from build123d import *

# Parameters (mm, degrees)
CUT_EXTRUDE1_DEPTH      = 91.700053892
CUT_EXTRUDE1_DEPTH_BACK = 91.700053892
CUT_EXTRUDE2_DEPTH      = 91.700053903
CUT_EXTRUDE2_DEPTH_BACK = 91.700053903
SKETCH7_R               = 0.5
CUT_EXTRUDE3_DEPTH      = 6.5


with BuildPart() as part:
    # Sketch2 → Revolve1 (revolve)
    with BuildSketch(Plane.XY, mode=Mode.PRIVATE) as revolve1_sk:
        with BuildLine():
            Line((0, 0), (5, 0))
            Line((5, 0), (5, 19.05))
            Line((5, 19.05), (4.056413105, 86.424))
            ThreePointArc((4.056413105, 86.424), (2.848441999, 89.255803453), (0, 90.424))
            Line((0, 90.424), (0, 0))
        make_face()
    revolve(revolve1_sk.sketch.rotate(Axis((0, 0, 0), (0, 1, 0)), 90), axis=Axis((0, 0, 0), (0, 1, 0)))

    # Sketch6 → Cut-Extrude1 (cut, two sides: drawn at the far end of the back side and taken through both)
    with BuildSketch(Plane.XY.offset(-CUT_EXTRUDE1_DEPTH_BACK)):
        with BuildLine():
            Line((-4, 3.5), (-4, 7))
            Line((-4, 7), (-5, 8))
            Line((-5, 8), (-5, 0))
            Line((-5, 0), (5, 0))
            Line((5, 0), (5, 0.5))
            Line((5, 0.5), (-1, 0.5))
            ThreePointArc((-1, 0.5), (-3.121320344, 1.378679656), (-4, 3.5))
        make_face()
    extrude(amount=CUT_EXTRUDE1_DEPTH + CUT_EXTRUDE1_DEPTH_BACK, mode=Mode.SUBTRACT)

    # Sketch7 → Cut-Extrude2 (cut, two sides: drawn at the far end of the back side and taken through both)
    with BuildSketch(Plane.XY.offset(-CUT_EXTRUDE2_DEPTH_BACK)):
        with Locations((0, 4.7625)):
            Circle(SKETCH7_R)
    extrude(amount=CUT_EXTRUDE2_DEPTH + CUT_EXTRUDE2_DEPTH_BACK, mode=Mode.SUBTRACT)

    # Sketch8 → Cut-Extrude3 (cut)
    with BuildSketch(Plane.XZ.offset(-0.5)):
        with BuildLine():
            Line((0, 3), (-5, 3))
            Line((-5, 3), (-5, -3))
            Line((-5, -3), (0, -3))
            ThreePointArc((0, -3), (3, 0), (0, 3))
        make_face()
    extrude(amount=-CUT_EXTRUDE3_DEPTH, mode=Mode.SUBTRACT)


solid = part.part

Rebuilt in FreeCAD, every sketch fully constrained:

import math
import FreeCAD as App
import Part
import Sketcher
from FreeCAD import Vector
Q = App.Units.Quantity

doc = App.newDocument("Part")
body = doc.addObject("PartDesign::Body", "Body")

# Sketch on XY plane
sketch1 = body.newObject("Sketcher::SketchObject", "Sketch")
sketch1.AttachmentSupport = (doc.getObject("XY_Plane"), [""])
sketch1.MapMode = "FlatFace"
sketch1.addGeometry([
    Part.LineSegment(Vector(0, 0, 0), Vector(5, 0, 0)),  # 0
    Part.LineSegment(Vector(5, 0, 0), Vector(5, 19.05, 0)),  # 1
    Part.LineSegment(Vector(5, 19.05, 0), Vector(4.056413, 86.424, 0)),  # 2
    Part.ArcOfCircle(Part.Circle(Vector(0, 86.367189, 0), Vector(0, 0, 1), 4.056811), math.radians(0.802387), math.radians(90)),  # 3
    Part.LineSegment(Vector(0, 90.424, 0), Vector(0, 0, 0)),  # 4
], False)
sketch1.addConstraint([
    Sketcher.Constraint("Coincident", 0, 2, 1, 1),
    Sketcher.Constraint("Coincident", 1, 2, 2, 1),
    Sketcher.Constraint("Tangent", 2, 2, 3, 1),
    Sketcher.Constraint("Coincident", 3, 2, 4, 1),
    Sketcher.Constraint("Coincident", 4, 2, 0, 1),
    Sketcher.Constraint("Horizontal", 0),
    Sketcher.Constraint("Vertical", 1),
    Sketcher.Constraint("Vertical", 4),
    Sketcher.Constraint("Coincident", 4, 2, -1, 1),
    Sketcher.Constraint("PointOnObject", 3, 3, -2),
    Sketcher.Constraint("DistanceX", 0, 1, 0, 2, 5.0),
    Sketcher.Constraint("DistanceY", 2, 2, 3, 2, 4.0),
    Sketcher.Constraint("DistanceY", 1, 1, 1, 2, 19.05),
    Sketcher.Constraint("DistanceY", 4, 2, 4, 1, 90.424),
])
revolution = body.newObject("PartDesign::Revolution", "Revolution")
revolution.Profile = sketch1
revolution.ReferenceAxis = (sketch1, ["V_Axis"])
revolution.Angle = 360

# Sketch on XY plane
sketch2 = body.newObject("Sketcher::SketchObject", "Sketch001")
sketch2.AttachmentSupport = (doc.getObject("XY_Plane"), [""])
sketch2.MapMode = "FlatFace"
sketch2.addGeometry([
    Part.LineSegment(Vector(-4, 3.5, 0), Vector(-4, 7, 0)),  # 0
    Part.LineSegment(Vector(-4, 7, 0), Vector(-5, 8, 0)),  # 1
    Part.LineSegment(Vector(-5, 8, 0), Vector(-5, 0, 0)),  # 2
    Part.LineSegment(Vector(-5, 0, 0), Vector(5, 0, 0)),  # 3
    Part.LineSegment(Vector(5, 0, 0), Vector(5, 0.5, 0)),  # 4
    Part.LineSegment(Vector(5, 0.5, 0), Vector(-1, 0.5, 0)),  # 5
    Part.ArcOfCircle(Part.Circle(Vector(-1, 3.5, 0), Vector(0, 0, 1), 3), math.radians(180), math.radians(270)),  # 6
], False)
sketch2.addConstraint([
    Sketcher.Constraint("Coincident", 0, 2, 1, 1),
    Sketcher.Constraint("Coincident", 1, 2, 2, 1),
    Sketcher.Constraint("Coincident", 2, 2, 3, 1),
    Sketcher.Constraint("Coincident", 3, 2, 4, 1),
    Sketcher.Constraint("Coincident", 4, 2, 5, 1),
    Sketcher.Constraint("Tangent", 5, 2, 6, 2),
    Sketcher.Constraint("Tangent", 6, 1, 0, 1),
    Sketcher.Constraint("Vertical", 0),
    Sketcher.Constraint("Vertical", 2),
    Sketcher.Constraint("Horizontal", 3),
    Sketcher.Constraint("Vertical", 4),
    Sketcher.Constraint("Horizontal", 5),
    Sketcher.Constraint("Symmetric", 2, 2, 3, 2, -1, 1),
    Sketcher.Constraint("Radius", 6, 3.0),
    Sketcher.Constraint("DistanceX", 3, 1, 3, 2, 10.0),
    Sketcher.Constraint("DistanceX", 5, 2, 5, 1, 6.0),
    Sketcher.Constraint("DistanceY", 2, 2, 2, 1, 8.0),
    Sketcher.Constraint("Angle", 1, Q("135 deg")),
    Sketcher.Constraint("DistanceY", 0, 1, 0, 2, 3.5),
])
pocket1 = body.newObject("PartDesign::Pocket", "Pocket")
pocket1.Profile = sketch2
pocket1.Type = "ThroughAll"
pocket1.Midplane = True

# Sketch on XY plane
sketch3 = body.newObject("Sketcher::SketchObject", "Sketch002")
sketch3.AttachmentSupport = (doc.getObject("XY_Plane"), [""])
sketch3.MapMode = "FlatFace"
sketch3.addGeometry(Part.Circle(Vector(0, 4.7625, 0), Vector(0, 0, 1), 0.5), False)
sketch3.addConstraint([
    Sketcher.Constraint("PointOnObject", 0, 3, -2),
    Sketcher.Constraint("Diameter", 0, 1.0),
    Sketcher.Constraint("DistanceY", -1, 1, 0, 3, 4.7625),
])
pocket2 = body.newObject("PartDesign::Pocket", "Pocket001")
pocket2.Profile = sketch3
pocket2.Type = "ThroughAll"
pocket2.Midplane = True

# Sketch on XZ plane
sketch4 = body.newObject("Sketcher::SketchObject", "Sketch003")
sketch4.AttachmentSupport = (doc.getObject("XZ_Plane"), [""])
sketch4.MapMode = "FlatFace"
sketch4.AttachmentOffset = App.Placement(Vector(0, 0, -0.5), App.Rotation())
sketch4.addGeometry([
    Part.LineSegment(Vector(0, 3, 0), Vector(-5, 3, 0)),
    Part.LineSegment(Vector(-5, 3, 0), Vector(-5, -3, 0)),
    Part.LineSegment(Vector(-5, -3, 0), Vector(0, -3, 0)),
    Part.ArcOfCircle(Part.Circle(Vector(0, 0, 0), Vector(0, 0, 1), 3), math.radians(-90), math.radians(90)),
], False)
sketch4.addConstraint([
    Sketcher.Constraint("Coincident", 0, 2, 1, 1),
    Sketcher.Constraint("Coincident", 1, 2, 2, 1),
    Sketcher.Constraint("Tangent", 2, 2, 3, 1),
    Sketcher.Constraint("Tangent", 3, 2, 0, 1),
    Sketcher.Constraint("Horizontal", 0),
    Sketcher.Constraint("Vertical", 1),
    Sketcher.Constraint("Horizontal", 2),
    Sketcher.Constraint("Coincident", 3, 3, -1, 1),
    Sketcher.Constraint("Radius", 3, 3.0),
    Sketcher.Constraint("DistanceX", 0, 2, 0, 1, 5.0),
])
pocket3 = body.newObject("PartDesign::Pocket", "Pocket002")
pocket3.Profile = sketch4
pocket3.Length = 6.5

doc.recompute()
